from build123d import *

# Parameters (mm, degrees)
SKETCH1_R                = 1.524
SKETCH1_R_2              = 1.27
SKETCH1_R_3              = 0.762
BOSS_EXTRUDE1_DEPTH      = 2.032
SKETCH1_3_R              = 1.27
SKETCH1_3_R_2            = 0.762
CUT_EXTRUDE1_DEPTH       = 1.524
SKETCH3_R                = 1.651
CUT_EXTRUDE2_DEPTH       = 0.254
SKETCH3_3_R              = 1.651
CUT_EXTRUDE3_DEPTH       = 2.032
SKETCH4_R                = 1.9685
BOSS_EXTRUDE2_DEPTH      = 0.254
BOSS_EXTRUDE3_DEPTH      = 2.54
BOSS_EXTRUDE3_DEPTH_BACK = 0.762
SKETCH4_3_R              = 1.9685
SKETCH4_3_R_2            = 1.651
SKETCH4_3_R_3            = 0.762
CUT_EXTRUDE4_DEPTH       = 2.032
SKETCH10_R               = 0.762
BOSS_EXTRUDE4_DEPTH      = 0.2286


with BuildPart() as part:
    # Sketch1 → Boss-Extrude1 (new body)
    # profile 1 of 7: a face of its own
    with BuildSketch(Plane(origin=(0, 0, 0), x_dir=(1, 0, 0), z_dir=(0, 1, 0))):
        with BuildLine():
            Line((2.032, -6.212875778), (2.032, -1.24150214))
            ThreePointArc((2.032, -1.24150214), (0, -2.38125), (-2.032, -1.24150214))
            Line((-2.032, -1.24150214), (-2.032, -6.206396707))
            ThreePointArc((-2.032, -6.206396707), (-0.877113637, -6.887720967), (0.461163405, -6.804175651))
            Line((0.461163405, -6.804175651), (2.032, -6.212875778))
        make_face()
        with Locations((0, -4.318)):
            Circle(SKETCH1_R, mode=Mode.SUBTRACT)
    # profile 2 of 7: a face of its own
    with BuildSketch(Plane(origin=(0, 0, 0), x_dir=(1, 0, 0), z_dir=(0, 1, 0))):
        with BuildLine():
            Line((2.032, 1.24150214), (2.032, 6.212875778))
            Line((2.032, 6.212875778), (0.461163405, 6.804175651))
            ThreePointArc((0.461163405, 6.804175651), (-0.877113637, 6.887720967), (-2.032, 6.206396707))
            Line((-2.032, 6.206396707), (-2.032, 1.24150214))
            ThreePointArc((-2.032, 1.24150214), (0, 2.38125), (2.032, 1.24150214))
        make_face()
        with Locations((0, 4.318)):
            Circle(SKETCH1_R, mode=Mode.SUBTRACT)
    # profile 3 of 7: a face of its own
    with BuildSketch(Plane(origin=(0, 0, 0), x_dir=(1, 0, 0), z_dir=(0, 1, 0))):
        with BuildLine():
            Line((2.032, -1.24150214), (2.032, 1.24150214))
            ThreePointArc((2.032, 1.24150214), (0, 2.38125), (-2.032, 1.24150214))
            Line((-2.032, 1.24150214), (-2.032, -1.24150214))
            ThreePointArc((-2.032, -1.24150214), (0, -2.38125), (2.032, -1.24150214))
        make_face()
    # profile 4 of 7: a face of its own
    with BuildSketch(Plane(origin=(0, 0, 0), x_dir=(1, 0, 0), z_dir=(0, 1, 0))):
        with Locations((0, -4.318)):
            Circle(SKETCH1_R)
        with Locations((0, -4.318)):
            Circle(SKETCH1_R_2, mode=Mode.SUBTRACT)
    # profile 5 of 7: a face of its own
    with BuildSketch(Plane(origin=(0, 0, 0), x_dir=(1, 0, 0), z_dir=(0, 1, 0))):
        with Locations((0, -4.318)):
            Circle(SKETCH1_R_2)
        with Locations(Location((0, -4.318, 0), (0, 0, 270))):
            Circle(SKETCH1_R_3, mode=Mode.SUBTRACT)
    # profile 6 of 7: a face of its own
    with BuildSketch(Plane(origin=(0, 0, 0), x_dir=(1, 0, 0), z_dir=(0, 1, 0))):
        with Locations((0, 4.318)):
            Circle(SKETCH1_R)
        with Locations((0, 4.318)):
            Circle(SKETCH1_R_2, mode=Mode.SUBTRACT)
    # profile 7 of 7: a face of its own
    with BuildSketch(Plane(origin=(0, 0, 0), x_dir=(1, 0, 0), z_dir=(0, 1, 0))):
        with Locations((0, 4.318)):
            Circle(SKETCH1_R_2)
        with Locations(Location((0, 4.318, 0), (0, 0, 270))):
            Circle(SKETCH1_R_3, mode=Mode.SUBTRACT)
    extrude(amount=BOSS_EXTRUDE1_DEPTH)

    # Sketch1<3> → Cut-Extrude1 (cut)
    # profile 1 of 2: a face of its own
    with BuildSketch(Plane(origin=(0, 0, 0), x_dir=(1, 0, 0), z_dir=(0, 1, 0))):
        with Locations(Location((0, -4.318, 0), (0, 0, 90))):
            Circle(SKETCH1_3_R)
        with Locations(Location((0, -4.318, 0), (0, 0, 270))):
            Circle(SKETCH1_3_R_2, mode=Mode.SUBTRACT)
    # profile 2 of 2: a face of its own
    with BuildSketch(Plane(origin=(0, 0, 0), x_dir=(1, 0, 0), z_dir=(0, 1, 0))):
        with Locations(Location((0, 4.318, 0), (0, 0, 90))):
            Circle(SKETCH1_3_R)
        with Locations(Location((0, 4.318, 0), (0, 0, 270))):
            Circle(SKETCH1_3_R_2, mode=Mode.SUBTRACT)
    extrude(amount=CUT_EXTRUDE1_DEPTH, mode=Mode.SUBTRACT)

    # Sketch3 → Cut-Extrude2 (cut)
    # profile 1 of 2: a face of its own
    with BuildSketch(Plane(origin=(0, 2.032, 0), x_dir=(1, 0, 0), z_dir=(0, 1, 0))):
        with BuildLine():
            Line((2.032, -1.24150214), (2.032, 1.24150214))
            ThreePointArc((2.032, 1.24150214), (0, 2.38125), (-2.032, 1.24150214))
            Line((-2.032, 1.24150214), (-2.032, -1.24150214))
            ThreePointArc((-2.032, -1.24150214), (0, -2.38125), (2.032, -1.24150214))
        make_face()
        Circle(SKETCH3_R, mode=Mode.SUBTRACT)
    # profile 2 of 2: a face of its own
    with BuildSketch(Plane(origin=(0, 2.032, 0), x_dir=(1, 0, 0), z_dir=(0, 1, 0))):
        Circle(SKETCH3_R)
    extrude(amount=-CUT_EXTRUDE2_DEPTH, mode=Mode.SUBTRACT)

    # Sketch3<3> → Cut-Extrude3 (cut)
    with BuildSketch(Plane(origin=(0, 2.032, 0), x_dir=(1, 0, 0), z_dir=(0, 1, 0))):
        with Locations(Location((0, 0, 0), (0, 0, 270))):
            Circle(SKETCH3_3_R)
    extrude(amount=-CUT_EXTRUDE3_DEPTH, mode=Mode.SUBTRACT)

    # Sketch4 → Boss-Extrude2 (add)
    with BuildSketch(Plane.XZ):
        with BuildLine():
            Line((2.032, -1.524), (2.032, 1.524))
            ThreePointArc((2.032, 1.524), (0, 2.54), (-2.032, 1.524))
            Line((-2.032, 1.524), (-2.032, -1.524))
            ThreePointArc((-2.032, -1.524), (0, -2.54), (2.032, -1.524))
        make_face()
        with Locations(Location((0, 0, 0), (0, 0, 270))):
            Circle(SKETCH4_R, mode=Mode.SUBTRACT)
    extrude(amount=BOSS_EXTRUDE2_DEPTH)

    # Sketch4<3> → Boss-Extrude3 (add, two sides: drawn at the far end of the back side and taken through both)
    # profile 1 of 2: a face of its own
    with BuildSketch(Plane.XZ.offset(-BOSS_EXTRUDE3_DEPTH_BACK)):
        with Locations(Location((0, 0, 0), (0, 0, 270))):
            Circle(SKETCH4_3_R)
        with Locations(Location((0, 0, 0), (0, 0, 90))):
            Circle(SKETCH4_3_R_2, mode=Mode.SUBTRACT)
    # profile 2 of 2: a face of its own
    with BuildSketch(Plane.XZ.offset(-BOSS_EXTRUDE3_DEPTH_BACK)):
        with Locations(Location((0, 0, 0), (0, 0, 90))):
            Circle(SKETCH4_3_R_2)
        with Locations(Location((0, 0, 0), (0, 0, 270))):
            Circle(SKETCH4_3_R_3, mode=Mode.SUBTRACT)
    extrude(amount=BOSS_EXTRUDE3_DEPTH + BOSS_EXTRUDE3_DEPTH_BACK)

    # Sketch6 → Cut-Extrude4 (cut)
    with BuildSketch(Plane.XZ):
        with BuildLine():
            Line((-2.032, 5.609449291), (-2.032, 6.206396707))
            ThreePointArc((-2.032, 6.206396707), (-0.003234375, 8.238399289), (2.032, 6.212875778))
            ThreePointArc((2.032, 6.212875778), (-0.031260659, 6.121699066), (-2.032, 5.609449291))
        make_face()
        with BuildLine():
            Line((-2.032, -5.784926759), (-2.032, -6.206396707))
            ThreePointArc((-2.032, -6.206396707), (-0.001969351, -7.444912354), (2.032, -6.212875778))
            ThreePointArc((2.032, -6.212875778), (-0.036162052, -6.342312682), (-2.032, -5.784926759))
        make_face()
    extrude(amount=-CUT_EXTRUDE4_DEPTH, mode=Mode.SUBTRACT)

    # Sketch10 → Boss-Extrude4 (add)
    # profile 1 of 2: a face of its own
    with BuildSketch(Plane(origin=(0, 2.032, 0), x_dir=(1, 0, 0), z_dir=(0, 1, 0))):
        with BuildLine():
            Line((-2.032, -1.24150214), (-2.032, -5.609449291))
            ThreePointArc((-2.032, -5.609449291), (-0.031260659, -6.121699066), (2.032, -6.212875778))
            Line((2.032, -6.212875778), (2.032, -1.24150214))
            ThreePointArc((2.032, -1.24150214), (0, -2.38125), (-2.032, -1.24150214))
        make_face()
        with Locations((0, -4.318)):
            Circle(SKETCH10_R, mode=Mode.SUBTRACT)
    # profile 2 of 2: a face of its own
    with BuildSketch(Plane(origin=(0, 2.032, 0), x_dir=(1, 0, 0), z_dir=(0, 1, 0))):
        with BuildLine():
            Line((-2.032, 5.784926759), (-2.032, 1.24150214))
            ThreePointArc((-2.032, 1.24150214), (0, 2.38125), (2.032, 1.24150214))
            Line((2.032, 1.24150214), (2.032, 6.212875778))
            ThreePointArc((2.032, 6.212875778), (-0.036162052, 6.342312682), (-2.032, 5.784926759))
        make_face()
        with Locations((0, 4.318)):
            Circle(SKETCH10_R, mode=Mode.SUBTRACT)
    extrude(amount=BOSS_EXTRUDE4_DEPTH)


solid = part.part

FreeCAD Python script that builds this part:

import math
import FreeCAD as App
import Part
import Sketcher
Q = App.Units.Quantity

doc = App.newDocument("Part")
body = doc.addObject("PartDesign::Body", "Body")

# Sketch on XZ plane
sketch1 = body.newObject("Sketcher::SketchObject", "Sketch")
sketch1.AttachmentSupport = (doc.getObject("XZ_Plane"), [""])
sketch1.MapMode = "FlatFace"
sketch1.addGeometry(Part.LineSegment(App.Vector(2, 6.2, 0), App.Vector(2, -6.2, 0)), False)
sketch1.addGeometry(Part.LineSegment(App.Vector(2, -6.2, 0), App.Vector(0.5, -6.8, 0)), False)
sketch1.addGeometry(Part.ArcOfCircle(Part.Circle(App.Vector(-0.3, -4.7, 0), App.Vector(0, 0, 1), 2.3), math.radians(-138), math.radians(-69)), False)
sketch1.addGeometry(Part.LineSegment(App.Vector(-2, -6.2, 0), App.Vector(-2, 6.2, 0)), False)
sketch1.addGeometry(Part.ArcOfCircle(Part.Circle(App.Vector(-0.3, 4.7, 0), App.Vector(0, 0, 1), 2.3), math.radians(69), math.radians(138)), False)
sketch1.addGeometry(Part.LineSegment(App.Vector(0.5, 6.8, 0), App.Vector(2, 6.2, 0)), False)
sketch1.addGeometry(Part.Circle(App.Vector(0, 4.3, 0), App.Vector(0, 0, 1), 0.8), False)
sketch1.addGeometry(Part.Circle(App.Vector(0, -4.3, 0), App.Vector(0, 0, 1), 0.8), False)
sketch1.addConstraint(Sketcher.Constraint("Coincident", 0, 2, 1, 1))
sketch1.addConstraint(Sketcher.Constraint("Tangent", 1, 2, 2, 2))
sketch1.addConstraint(Sketcher.Constraint("Coincident", 2, 1, 3, 1))
sketch1.addConstraint(Sketcher.Constraint("Coincident", 3, 2, 4, 2))
sketch1.addConstraint(Sketcher.Constraint("Tangent", 4, 1, 5, 1))
sketch1.addConstraint(Sketcher.Constraint("Coincident", 5, 2, 0, 1))
sketch1.addConstraint(Sketcher.Constraint("Vertical", 0))
sketch1.addConstraint(Sketcher.Constraint("Vertical", 3))
sketch1.addConstraint(Sketcher.Constraint("Equal", 2, 4))
sketch1.addConstraint(Sketcher.Constraint("Equal", 6, 7))
sketch1.addConstraint(Sketcher.Constraint("Symmetric", 6, 3, 7, 3, -1, 1))
sketch1.addConstraint(Sketcher.Constraint("Symmetric", 2, 3, 4, 3, -1))
sketch1.addConstraint(Sketcher.Constraint("PointOnObject", 6, 3, -2))
sketch1.addConstraint(Sketcher.Constraint("Vertical", 1, 2, 4, 1))
sketch1.addConstraint(Sketcher.Constraint("Diameter", 6, Q("0.06 in")))
sketch1.addConstraint(Sketcher.Constraint("DistanceY", -1, 1, 6, 3, Q("0.17 in")))
sketch1.addConstraint(Sketcher.Constraint("DistanceX", -1, 1, 0, 2, Q("0.08 in")))
sketch1.addConstraint(Sketcher.Constraint("DistanceX", 2, 1, -1, 1, Q("0.08 in")))
sketch1.addConstraint(Sketcher.Constraint("Radius", 2, Q("2.285894 mm")))
sketch1.addConstraint(Sketcher.Constraint("DistanceY", 0, 2, 0, 1, Q("12.425752 mm")))
sketch1.addConstraint(Sketcher.Constraint("DistanceY", 1, 2, 0, 2, Q("0.5913 mm")))
sketch1.addConstraint(Sketcher.Constraint("DistanceX", 2, 3, 1, 2, Q("0.8053 mm")))
pad1 = body.newObject("PartDesign::Pad", "Pad")
pad1.Profile = sketch1
pad1.Length = Q("0.08 in")
pad1.Reversed = True

# Sketch on XZ plane
sketch2 = body.newObject("Sketcher::SketchObject", "Sketch001")
sketch2.AttachmentSupport = (doc.getObject("XZ_Plane"), [""])
sketch2.MapMode = "FlatFace"
sketch2.addGeometry(Part.Circle(App.Vector(0, 4.3, 0), App.Vector(0, 0, 1), 1.3), False)
sketch2.addGeometry(Part.Circle(App.Vector(0, 4.3, 0), App.Vector(0, 0, 1), 0.8), False)
sketch2.addGeometry(Part.Circle(App.Vector(0, -4.3, 0), App.Vector(0, 0, 1), 1.3), False)
sketch2.addGeometry(Part.Circle(App.Vector(0, -4.3, 0), App.Vector(0, 0, 1), 0.8), False)
sketch2.addConstraint(Sketcher.Constraint("Coincident", 1, 3, 0, 3))
sketch2.addConstraint(Sketcher.Constraint("Coincident", 3, 3, 2, 3))
sketch2.addConstraint(Sketcher.Constraint("Equal", 0, 2))
sketch2.addConstraint(Sketcher.Constraint("Equal", 1, 3))
sketch2.addConstraint(Sketcher.Constraint("Symmetric", 0, 3, 2, 3, -1, 1))
sketch2.addConstraint(Sketcher.Constraint("PointOnObject", 0, 3, -2))
sketch2.addConstraint(Sketcher.Constraint("Diameter", 0, Q("0.1 in")))
sketch2.addConstraint(Sketcher.Constraint("Diameter", 1, Q("0.06 in")))
sketch2.addConstraint(Sketcher.Constraint("DistanceY", -1, 1, 0, 3, Q("0.17 in")))
pocket1 = body.newObject("PartDesign::Pocket", "Pocket")
pocket1.Profile = sketch2
pocket1.Length = Q("0.06 in")

# Sketch on XZ plane
sketch3 = body.newObject("Sketcher::SketchObject", "Sketch002")
sketch3.AttachmentSupport = (doc.getObject("XZ_Plane"), [""])
sketch3.MapMode = "FlatFace"
sketch3.AttachmentOffset = App.Placement(App.Vector(0, 0, -0.08 * 25.4), App.Rotation())
sketch3.addGeometry(Part.LineSegment(App.Vector(2, 1.2, 0), App.Vector(2, -1.2, 0)), False)
sketch3.addGeometry(Part.ArcOfCircle(Part.Circle(App.Vector(0, 0, 0), App.Vector(0, 0, 1), 2.4), math.radians(-149), math.radians(-31)), False)
sketch3.addGeometry(Part.LineSegment(App.Vector(-2, -1.2, 0), App.Vector(-2, 1.2, 0)), False)
sketch3.addGeometry(Part.ArcOfCircle(Part.Circle(App.Vector(0, 0, 0), App.Vector(0, 0, 1), 2.4), math.radians(31), math.radians(149)), False)
sketch3.addConstraint(Sketcher.Constraint("Coincident", 0, 2, 1, 2))
sketch3.addConstraint(Sketcher.Constraint("Coincident", 1, 1, 2, 1))
sketch3.addConstraint(Sketcher.Constraint("Coincident", 2, 2, 3, 2))
sketch3.addConstraint(Sketcher.Constraint("Coincident", 3, 1, 0, 1))
sketch3.addConstraint(Sketcher.Constraint("Vertical", 0))
sketch3.addConstraint(Sketcher.Constraint("Vertical", 2))
sketch3.addConstraint(Sketcher.Constraint("Coincident", 1, 3, -1, 1))
sketch3.addConstraint(Sketcher.Constraint("Coincident", 3, 3, -1, 1))
sketch3.addConstraint(Sketcher.Constraint("Equal", 1, 3))
sketch3.addConstraint(Sketcher.Constraint("Horizontal", 0, 2, 1, 1))
sketch3.addConstraint(Sketcher.Constraint("Radius", 1, Q("0.09375 in")))
sketch3.addConstraint(Sketcher.Constraint("DistanceX", -1, 1, 0, 2, Q("0.08 in")))
pocket2 = body.newObject("PartDesign::Pocket", "Pocket001")
pocket2.Profile = sketch3
pocket2.Length = Q("0.01 in")
pocket2.Reversed = True

# Sketch on XZ plane
sketch4 = body.newObject("Sketcher::SketchObject", "Sketch003")
sketch4.AttachmentSupport = (doc.getObject("XZ_Plane"), [""])
sketch4.MapMode = "FlatFace"
sketch4.AttachmentOffset = App.Placement(App.Vector(0, 0, -0.08 * 25.4), App.Rotation())
sketch4.addGeometry(Part.Circle(App.Vector(0, 0, 0), App.Vector(0, 0, 1), 1.7), False)
sketch4.addConstraint(Sketcher.Constraint("Coincident", 0, 3, -1, 1))
sketch4.addConstraint(Sketcher.Constraint("Diameter", 0, Q("0.13 in")))
pocket3 = body.newObject("PartDesign::Pocket", "Pocket002")
pocket3.Profile = sketch4
pocket3.Length = Q("0.08 in")
pocket3.Reversed = True

# Sketch on XZ plane
sketch5 = body.newObject("Sketcher::SketchObject", "Sketch004")
sketch5.AttachmentSupport = (doc.getObject("XZ_Plane"), [""])
sketch5.MapMode = "FlatFace"
sketch5.addGeometry(Part.LineSegment(App.Vector(2, -1.5, 0), App.Vector(2, 1.5, 0)), False)
sketch5.addGeometry(Part.ArcOfCircle(Part.Circle(App.Vector(0, 0, 0), App.Vector(0, 0, 1), 2.5), math.radians(37), math.radians(143)), False)
sketch5.addGeometry(Part.LineSegment(App.Vector(-2, 1.5, 0), App.Vector(-2, -1.5, 0)), False)
sketch5.addGeometry(Part.ArcOfCircle(Part.Circle(App.Vector(0, 0, 0), App.Vector(0, 0, 1), 2.5), math.radians(-143), math.radians(-37)), False)
sketch5.addGeometry(Part.Circle(App.Vector(0, 0, 0), App.Vector(0, 0, 1), 2), False)
sketch5.addConstraint(Sketcher.Constraint("Coincident", 0, 2, 1, 1))
sketch5.addConstraint(Sketcher.Constraint("Coincident", 1, 2, 2, 1))
sketch5.addConstraint(Sketcher.Constraint("Coincident", 2, 2, 3, 1))
sketch5.addConstraint(Sketcher.Constraint("Coincident", 3, 2, 0, 1))
sketch5.addConstraint(Sketcher.Constraint("Vertical", 0))
sketch5.addConstraint(Sketcher.Constraint("Vertical", 2))
sketch5.addConstraint(Sketcher.Constraint("Coincident", 1, 3, -1, 1))
sketch5.addConstraint(Sketcher.Constraint("Coincident", 3, 3, -1, 1))
sketch5.addConstraint(Sketcher.Constraint("Coincident", 4, 3, -1, 1))
sketch5.addConstraint(Sketcher.Constraint("Equal", 1, 3))
sketch5.addConstraint(Sketcher.Constraint("Horizontal", 0, 2, 1, 2))
sketch5.addConstraint(Sketcher.Constraint("Radius", 1, Q("0.1 in")))
sketch5.addConstraint(Sketcher.Constraint("Diameter", 4, Q("0.155 in")))
sketch5.addConstraint(Sketcher.Constraint("DistanceY", 0, 1, 0, 2, Q("0.12 in")))
pad2 = body.newObject("PartDesign::Pad", "Pad001")
pad2.Profile = sketch5
pad2.Length = Q("0.01 in")

# Sketch on XZ plane
sketch6 = body.newObject("Sketcher::SketchObject", "Sketch005")
sketch6.AttachmentSupport = (doc.getObject("XZ_Plane"), [""])
sketch6.MapMode = "FlatFace"
sketch6.addGeometry(Part.Circle(App.Vector(0, 0, 0), App.Vector(0, 0, 1), 2), False)
sketch6.addGeometry(Part.Circle(App.Vector(0, 0, 0), App.Vector(0, 0, 1), 0.8), False)
sketch6.addConstraint(Sketcher.Constraint("Coincident", 0, 3, -1, 1))
sketch6.addConstraint(Sketcher.Constraint("Coincident", 1, 3, -1, 1))
sketch6.addConstraint(Sketcher.Constraint("Diameter", 1, Q("0.06 in")))
sketch6.addConstraint(Sketcher.Constraint("Diameter", 0, Q("0.155 in")))
pad3 = body.newObject("PartDesign::Pad", "Pad002")
pad3.Profile = sketch6
pad3.Type = "TwoLengths"
pad3.Length = Q("0.1 in")
pad3.Length2 = Q("0.03 in")

# Sketch on XZ plane
sketch7 = body.newObject("Sketcher::SketchObject", "Sketch006")
sketch7.AttachmentSupport = (doc.getObject("XZ_Plane"), [""])
sketch7.MapMode = "FlatFace"
sketch7.addGeometry(Part.LineSegment(App.Vector(-2.03, 6.21, 0), App.Vector(-2.03, 5.61, 0)), False)
sketch7.addGeometry(Part.ArcOfCircle(Part.Circle(App.Vector(1.44, -3.79, 0), App.Vector(0, 0, 1), 10.02), math.radians(87), math.radians(110)), False)
sketch7.addGeometry(Part.ArcOfCircle(Part.Circle(App.Vector(0, 6.21, 0), App.Vector(0, 0, 1), 2.03), math.radians(0), math.radians(180)), False)
sketch7.addGeometry(Part.LineSegment(App.Vector(-2.03, -5.78, 0), App.Vector(-2.03, -6.21, 0)), False)
sketch7.addGeometry(Part.ArcOfCircle(Part.Circle(App.Vector(0, -5.16, 0), App.Vector(0, 0, 1), 2.29), math.radians(-153), math.radians(-27)), False)
sketch7.addGeometry(Part.ArcOfCircle(Part.Circle(App.Vector(0.61, -0.16, 0), App.Vector(0, 0, 1), 6.22), math.radians(-115), math.radians(-77)), False)
sketch7.addConstraint(Sketcher.Constraint("Coincident", 0, 2, 1, 2))
sketch7.addConstraint(Sketcher.Constraint("Coincident", 1, 1, 2, 1))
sketch7.addConstraint(Sketcher.Constraint("Tangent", 2, 2, 0, 1))
sketch7.addConstraint(Sketcher.Constraint("Coincident", 3, 2, 4, 1))
sketch7.addConstraint(Sketcher.Constraint("Coincident", 4, 2, 5, 2))
sketch7.addConstraint(Sketcher.Constraint("Coincident", 5, 1, 3, 1))
sketch7.addConstraint(Sketcher.Constraint("Vertical", 0))
sketch7.addConstraint(Sketcher.Constraint("Vertical", 3))
sketch7.addConstraint(Sketcher.Constraint("Symmetric", 2, 2, 3, 2, -1))
sketch7.addConstraint(Sketcher.Constraint("Symmetric", 1, 1, 4, 2, -1))
sketch7.addConstraint(Sketcher.Constraint("DistanceX", 0, 2, -1, 1, Q("0.08 in")))
sketch7.addConstraint(Sketcher.Constraint("DistanceX", -1, 1, 1, 1, Q("0.08 in")))
sketch7.addConstraint(Sketcher.Constraint("Radius", 5, Q("6.217669 mm")))
sketch7.addConstraint(Sketcher.Constraint("Radius", 1, Q("10.019883 mm")))
sketch7.addConstraint(Sketcher.Constraint("Radius", 4, Q("2.288937 mm")))
sketch7.addConstraint(Sketcher.Constraint("DistanceY", 3, 2, 3, 1, Q("0.42147 mm")))
sketch7.addConstraint(Sketcher.Constraint("DistanceY", 1, 3, 1, 1, Q("10.002401 mm")))
sketch7.addConstraint(Sketcher.Constraint("DistanceY", 5, 1, 1, 3, Q("1.995401 mm")))
sketch7.addConstraint(Sketcher.Constraint("DistanceY", 0, 2, 0, 1, Q("0.596947 mm")))
pocket4 = body.newObject("PartDesign::Pocket", "Pocket003")
pocket4.Profile = sketch7
pocket4.Length = Q("0.08 in")

# Sketch on XZ plane
sketch8 = body.newObject("Sketcher::SketchObject", "Sketch007")
sketch8.AttachmentSupport = (doc.getObject("XZ_Plane"), [""])
sketch8.MapMode = "FlatFace"
sketch8.AttachmentOffset = App.Placement(App.Vector(0, 0, -0.08 * 25.4), App.Rotation())
sketch8.addGeometry(Part.LineSegment(App.Vector(-2, 1.2, 0), App.Vector(-2, 5.6, 0)), False)
sketch8.addGeometry(Part.ArcOfCircle(Part.Circle(App.Vector(1.4, -3.8, 0), App.Vector(0, 0, 1), 10), math.radians(87), math.radians(110)), False)
sketch8.addGeometry(Part.LineSegment(App.Vector(2, 6.2, 0), App.Vector(2, 1.2, 0)), False)
sketch8.addGeometry(Part.ArcOfCircle(Part.Circle(App.Vector(0, 0, 0), App.Vector(0, 0, 1), 2.4), math.radians(31), math.radians(149)), False)
sketch8.addGeometry(Part.Circle(App.Vector(0, 4.3, 0), App.Vector(0, 0, 1), 0.8), False)
sketch8.addGeometry(Part.LineSegment(App.Vector(-2, -5.8, 0), App.Vector(-2, -1.2, 0)), False)
sketch8.addGeometry(Part.ArcOfCircle(Part.Circle(App.Vector(0, 0, 0), App.Vector(0, 0, 1), 2.4), math.radians(-149), math.radians(-31)), False)
sketch8.addGeometry(Part.LineSegment(App.Vector(2, -1.2, 0), App.Vector(2, -6.2, 0)), False)
sketch8.addGeometry(Part.ArcOfCircle(Part.Circle(App.Vector(0.6, -0.2, 0), App.Vector(0, 0, 1), 6.2), math.radians(-115), math.radians(-77)), False)
sketch8.addGeometry(Part.Circle(App.Vector(0, -4.3, 0), App.Vector(0, 0, 1), 0.8), False)
sketch8.addConstraint(Sketcher.Constraint("Coincident", 0, 2, 1, 2))
sketch8.addConstraint(Sketcher.Constraint("Coincident", 1, 1, 2, 1))
sketch8.addConstraint(Sketcher.Constraint("Coincident", 2, 2, 3, 1))
sketch8.addConstraint(Sketcher.Constraint("Coincident", 3, 2, 0, 1))
sketch8.addConstraint(Sketcher.Constraint("Coincident", 5, 2, 6, 1))
sketch8.addConstraint(Sketcher.Constraint("Coincident", 6, 2, 7, 1))
sketch8.addConstraint(Sketcher.Constraint("Coincident", 7, 2, 8, 2))
sketch8.addConstraint(Sketcher.Constraint("Coincident", 8, 1, 5, 1))
sketch8.addConstraint(Sketcher.Constraint("Vertical", 0))
sketch8.addConstraint(Sketcher.Constraint("Vertical", 2))
sketch8.addConstraint(Sketcher.Constraint("Vertical", 5))
sketch8.addConstraint(Sketcher.Constraint("Vertical", 7))
sketch8.addConstraint(Sketcher.Constraint("Coincident", 3, 3, -1, 1))
sketch8.addConstraint(Sketcher.Constraint("Coincident", 6, 3, -1, 1))
sketch8.addConstraint(Sketcher.Constraint("Equal", 3, 6))
sketch8.addConstraint(Sketcher.Constraint("Equal", 4, 9))
sketch8.addConstraint(Sketcher.Constraint("Symmetric", 4, 3, 9, 3, -1, 1))
sketch8.addConstraint(Sketcher.Constraint("Symmetric", 1, 1, 7, 2, -1))
sketch8.addConstraint(Sketcher.Constraint("PointOnObject", 4, 3, -2))
sketch8.addConstraint(Sketcher.Constraint("Horizontal", 2, 2, 3, 2))
sketch8.addConstraint(Sketcher.Constraint("Horizontal", 5, 2, 6, 2))
sketch8.addConstraint(Sketcher.Constraint("Diameter", 4, Q("0.06 in")))
sketch8.addConstraint(Sketcher.Constraint("Radius", 3, Q("0.09375 in")))
sketch8.addConstraint(Sketcher.Constraint("DistanceY", -1, 1, 4, 3, Q("0.17 in")))
sketch8.addConstraint(Sketcher.Constraint("DistanceX", 0, 2, -1, 1, Q("0.08 in")))
sketch8.addConstraint(Sketcher.Constraint("Radius", 8, Q("6.217669 mm")))
sketch8.addConstraint(Sketcher.Constraint("Radius", 1, Q("10.019883 mm")))
sketch8.addConstraint(Sketcher.Constraint("DistanceY", 8, 1, 1, 3, Q("1.995401 mm")))
sketch8.addConstraint(Sketcher.Constraint("DistanceY", 0, 1, 0, 2, Q("4.367947 mm")))
sketch8.addConstraint(Sketcher.Constraint("DistanceY", 2, 2, 2, 1, Q("4.971374 mm")))
pad4 = body.newObject("PartDesign::Pad", "Pad003")
pad4.Profile = sketch8
pad4.Length = Q("0.009 in")
pad4.Reversed = True

doc.recompute()
